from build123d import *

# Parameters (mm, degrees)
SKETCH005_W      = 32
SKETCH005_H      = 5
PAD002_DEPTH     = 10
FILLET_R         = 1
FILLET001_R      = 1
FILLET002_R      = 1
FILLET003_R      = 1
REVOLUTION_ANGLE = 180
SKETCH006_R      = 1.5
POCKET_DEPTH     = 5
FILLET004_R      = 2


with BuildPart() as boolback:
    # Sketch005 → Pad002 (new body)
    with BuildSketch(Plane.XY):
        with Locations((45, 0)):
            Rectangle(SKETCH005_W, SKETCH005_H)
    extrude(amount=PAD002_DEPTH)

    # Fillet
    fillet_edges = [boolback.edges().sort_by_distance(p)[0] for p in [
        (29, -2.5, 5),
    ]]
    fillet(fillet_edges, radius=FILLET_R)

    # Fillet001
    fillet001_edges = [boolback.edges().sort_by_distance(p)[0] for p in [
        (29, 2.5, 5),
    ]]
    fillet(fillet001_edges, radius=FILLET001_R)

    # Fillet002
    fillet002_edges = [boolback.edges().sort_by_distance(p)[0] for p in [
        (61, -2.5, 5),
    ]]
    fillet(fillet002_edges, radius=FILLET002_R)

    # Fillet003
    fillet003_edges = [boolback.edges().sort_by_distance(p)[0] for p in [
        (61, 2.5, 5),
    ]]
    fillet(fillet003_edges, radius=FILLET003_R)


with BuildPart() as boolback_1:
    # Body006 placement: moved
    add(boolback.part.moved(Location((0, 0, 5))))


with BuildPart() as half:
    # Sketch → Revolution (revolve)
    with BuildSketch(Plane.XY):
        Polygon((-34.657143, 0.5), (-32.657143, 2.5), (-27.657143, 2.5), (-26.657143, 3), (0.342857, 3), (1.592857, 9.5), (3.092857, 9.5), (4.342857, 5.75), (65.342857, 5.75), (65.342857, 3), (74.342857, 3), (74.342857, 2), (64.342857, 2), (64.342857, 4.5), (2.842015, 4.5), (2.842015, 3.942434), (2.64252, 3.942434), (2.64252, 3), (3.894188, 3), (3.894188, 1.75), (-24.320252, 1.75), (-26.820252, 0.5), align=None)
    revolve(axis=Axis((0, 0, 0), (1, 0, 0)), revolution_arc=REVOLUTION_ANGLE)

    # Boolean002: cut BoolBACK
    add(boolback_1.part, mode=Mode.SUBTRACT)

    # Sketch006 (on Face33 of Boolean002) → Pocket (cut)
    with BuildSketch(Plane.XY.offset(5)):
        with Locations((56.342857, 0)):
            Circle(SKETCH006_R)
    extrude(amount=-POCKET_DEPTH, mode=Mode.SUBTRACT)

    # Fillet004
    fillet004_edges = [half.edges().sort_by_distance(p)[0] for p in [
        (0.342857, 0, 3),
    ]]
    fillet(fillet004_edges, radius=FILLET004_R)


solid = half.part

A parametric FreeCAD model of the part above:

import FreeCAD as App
import Part
import Sketcher

V = App.Vector
Q = App.Units.Quantity


def edges_at(feature, points):
    """Names of the edges that pass closest to the given points."""
    edges = feature.Shape.Edges
    near = lambda p: min(range(len(edges)), key=lambda i: edges[i].distToShape(Part.Vertex(*p))[0])
    return sorted({f"Edge{near(p) + 1}" for p in points})

doc = App.newDocument("Part")
body = doc.addObject("PartDesign::Body", "Body")

# Sketch on XY plane
sketch1 = body.newObject("Sketcher::SketchObject", "Sketch")
sketch1.AttachmentSupport = (doc.getObject("XY_Plane"), [""])
sketch1.MapMode = "FlatFace"
sketch1.addGeometry(Part.LineSegment(V(29, 2.5, 0), V(29, -2.5, 0)), False)
sketch1.addGeometry(Part.LineSegment(V(29, -2.5, 0), V(61, -2.5, 0)), False)
sketch1.addGeometry(Part.LineSegment(V(61, -2.5, 0), V(61, 2.5, 0)), False)
sketch1.addGeometry(Part.LineSegment(V(61, 2.5, 0), V(29, 2.5, 0)), False)
sketch1.addConstraint(Sketcher.Constraint("Coincident", 0, 2, 1, 1))
sketch1.addConstraint(Sketcher.Constraint("Coincident", 1, 2, 2, 1))
sketch1.addConstraint(Sketcher.Constraint("Coincident", 2, 2, 3, 1))
sketch1.addConstraint(Sketcher.Constraint("Coincident", 3, 2, 0, 1))
sketch1.addConstraint(Sketcher.Constraint("Vertical", 0))
sketch1.addConstraint(Sketcher.Constraint("Horizontal", 1))
sketch1.addConstraint(Sketcher.Constraint("Vertical", 2))
sketch1.addConstraint(Sketcher.Constraint("Horizontal", 3))
sketch1.addConstraint(Sketcher.Constraint("DistanceX", 1, 1, 1, 2, Q("32 mm")))
sketch1.addConstraint(Sketcher.Constraint("DistanceY", 0, 2, 0, 1, Q("5 mm")))
sketch1.addConstraint(Sketcher.Constraint("DistanceX", -1, 1, 0, 2, Q("29 mm")))
sketch1.addConstraint(Sketcher.Constraint("DistanceY", 0, 2, -1, 1, Q("2.5 mm")))
pad1 = body.newObject("PartDesign::Pad", "Pad")
pad1.Profile = sketch1
pad1.Length = 10
doc.recompute()

fillet = body.newObject("PartDesign::Fillet", "Fillet")
fillet.Base = (pad1, edges_at(pad1, [(29, -2.5, 5)]))
fillet.Radius = 1
doc.recompute()

fillet2 = body.newObject("PartDesign::Fillet", "Fillet001")
fillet2.Base = (fillet, edges_at(fillet, [(29, 2.5, 5)]))
fillet2.Radius = 1
doc.recompute()

fillet3 = body.newObject("PartDesign::Fillet", "Fillet002")
fillet3.Base = (fillet2, edges_at(fillet2, [(61, -2.5, 5)]))
fillet3.Radius = 1
doc.recompute()

fillet4 = body.newObject("PartDesign::Fillet", "Fillet003")
fillet4.Base = (fillet3, edges_at(fillet3, [(61, 2.5, 5)]))
fillet4.Radius = 1
body2 = doc.addObject("PartDesign::Body", "Body001")
doc.recompute()

body.Placement = App.Placement(V(0, 0, 5), App.Rotation(V(0, 0, 1), 0))
boolean = body2.newObject("PartDesign::Boolean", "Boolean")
boolean.Type = "Fuse"
boolean.addObjects([body])
body3 = doc.addObject("PartDesign::Body", "Body002")

# Sketch on XY plane
sketch2 = body3.newObject("Sketcher::SketchObject", "Sketch001")
sketch2.AttachmentSupport = (doc.getObject("XY_Plane002"), [""])
sketch2.MapMode = "FlatFace"
sketch2.addGeometry(Part.LineSegment(V(-32.657143, 2.5, 0), V(-34.657143, 0.5, 0)), False)
sketch2.addGeometry(Part.LineSegment(V(-34.657143, 0.5, 0), V(-26.820252, 0.5, 0)), False)
sketch2.addGeometry(Part.LineSegment(V(-26.820252, 0.5, 0), V(-24.320252, 1.75, 0)), False)
sketch2.addGeometry(Part.LineSegment(V(-24.320252, 1.75, 0), V(3.894188, 1.75, 0)), False)
sketch2.addGeometry(Part.LineSegment(V(3.894188, 1.75, 0), V(3.894188, 3, 0)), False)
sketch2.addGeometry(Part.LineSegment(V(3.894188, 3, 0), V(2.64252, 3, 0)), False)
sketch2.addGeometry(Part.LineSegment(V(2.64252, 3, 0), V(2.64252, 3.942434, 0)), False)
sketch2.addGeometry(Part.LineSegment(V(2.64252, 3.942434, 0), V(2.842015, 3.942434, 0)), False)
sketch2.addGeometry(Part.LineSegment(V(2.842015, 3.942434, 0), V(2.842015, 4.5, 0)), False)
sketch2.addGeometry(Part.LineSegment(V(2.842015, 4.5, 0), V(64.342857, 4.5, 0)), False)
sketch2.addGeometry(Part.LineSegment(V(64.342857, 4.5, 0), V(64.342857, 2, 0)), False)
sketch2.addGeometry(Part.LineSegment(V(64.342857, 2, 0), V(74.342857, 2, 0)), False)
sketch2.addGeometry(Part.LineSegment(V(74.342857, 2, 0), V(74.342857, 3, 0)), False)
sketch2.addGeometry(Part.LineSegment(V(74.342857, 3, 0), V(65.342857, 3, 0)), False)
sketch2.addGeometry(Part.LineSegment(V(65.342857, 3, 0), V(65.342857, 5.75, 0)), False)
sketch2.addGeometry(Part.LineSegment(V(65.342857, 5.75, 0), V(4.342857, 5.75, 0)), False)
sketch2.addGeometry(Part.LineSegment(V(4.342857, 5.75, 0), V(3.092857, 9.5, 0)), False)
sketch2.addGeometry(Part.LineSegment(V(3.092857, 9.5, 0), V(1.592857, 9.5, 0)), False)
sketch2.addGeometry(Part.LineSegment(V(1.592857, 9.5, 0), V(0.342857, 3, 0)), False)
sketch2.addGeometry(Part.LineSegment(V(0.342857, 3, 0), V(-26.657143, 3, 0)), False)
sketch2.addGeometry(Part.LineSegment(V(-26.657143, 3, 0), V(-27.657143, 2.5, 0)), False)
sketch2.addGeometry(Part.LineSegment(V(-27.657143, 2.5, 0), V(-32.657143, 2.5, 0)), False)
sketch2.addConstraint(Sketcher.Constraint("Coincident", 0, 2, 1, 1))
sketch2.addConstraint(Sketcher.Constraint("Coincident", 1, 2, 2, 1))
sketch2.addConstraint(Sketcher.Constraint("Coincident", 2, 2, 3, 1))
sketch2.addConstraint(Sketcher.Constraint("Coincident", 3, 2, 4, 1))
sketch2.addConstraint(Sketcher.Constraint("Coincident", 4, 2, 5, 1))
sketch2.addConstraint(Sketcher.Constraint("Coincident", 5, 2, 6, 1))
sketch2.addConstraint(Sketcher.Constraint("Coincident", 6, 2, 7, 1))
sketch2.addConstraint(Sketcher.Constraint("Coincident", 7, 2, 8, 1))
sketch2.addConstraint(Sketcher.Constraint("Coincident", 8, 2, 9, 1))
sketch2.addConstraint(Sketcher.Constraint("Coincident", 9, 2, 10, 1))
sketch2.addConstraint(Sketcher.Constraint("Coincident", 10, 2, 11, 1))
sketch2.addConstraint(Sketcher.Constraint("Coincident", 11, 2, 12, 1))
sketch2.addConstraint(Sketcher.Constraint("Coincident", 12, 2, 13, 1))
sketch2.addConstraint(Sketcher.Constraint("Coincident", 13, 2, 14, 1))
sketch2.addConstraint(Sketcher.Constraint("Coincident", 14, 2, 15, 1))
sketch2.addConstraint(Sketcher.Constraint("Coincident", 15, 2, 16, 1))
sketch2.addConstraint(Sketcher.Constraint("Coincident", 16, 2, 17, 1))
sketch2.addConstraint(Sketcher.Constraint("Coincident", 17, 2, 18, 1))
sketch2.addConstraint(Sketcher.Constraint("Coincident", 18, 2, 19, 1))
sketch2.addConstraint(Sketcher.Constraint("Coincident", 19, 2, 20, 1))
sketch2.addConstraint(Sketcher.Constraint("Coincident", 20, 2, 21, 1))
sketch2.addConstraint(Sketcher.Constraint("Coincident", 21, 2, 0, 1))
sketch2.addConstraint(Sketcher.Constraint("Horizontal", 1))
sketch2.addConstraint(Sketcher.Constraint("Horizontal", 3))
sketch2.addConstraint(Sketcher.Constraint("Vertical", 4))
sketch2.addConstraint(Sketcher.Constraint("Horizontal", 5))
sketch2.addConstraint(Sketcher.Constraint("Vertical", 6))
sketch2.addConstraint(Sketcher.Constraint("Horizontal", 7))
sketch2.addConstraint(Sketcher.Constraint("Vertical", 8))
sketch2.addConstraint(Sketcher.Constraint("Horizontal", 9))
sketch2.addConstraint(Sketcher.Constraint("Vertical", 10))
sketch2.addConstraint(Sketcher.Constraint("Horizontal", 11))
sketch2.addConstraint(Sketcher.Constraint("Vertical", 12))
sketch2.addConstraint(Sketcher.Constraint("Horizontal", 13))
sketch2.addConstraint(Sketcher.Constraint("Vertical", 14))
sketch2.addConstraint(Sketcher.Constraint("Horizontal", 15))
sketch2.addConstraint(Sketcher.Constraint("Horizontal", 17))
sketch2.addConstraint(Sketcher.Constraint("Horizontal", 19))
sketch2.addConstraint(Sketcher.Constraint("Horizontal", 21))
sketch2.addConstraint(Sketcher.Constraint("Parallel", 2, 20))
sketch2.addConstraint(Sketcher.Constraint("Horizontal", 5, 2, 12, 2))
sketch2.addConstraint(Sketcher.Constraint("Horizontal", 13, 2, 18, 2))
sketch2.addConstraint(Sketcher.Constraint("DistanceX", 11, 1, 11, 2, Q("10 mm")))
sketch2.addConstraint(Sketcher.Constraint("DistanceX", 13, 2, 13, 1, Q("9 mm")))
sketch2.addConstraint(Sketcher.Constraint("DistanceX", 15, 2, 15, 1, Q("61 mm")))
sketch2.addConstraint(Sketcher.Constraint("DistanceX", 19, 2, 19, 1, Q("27 mm")))
sketch2.addConstraint(Sketcher.Constraint("DistanceX", 21, 2, 21, 1, Q("5 mm")))
sketch2.addConstraint(Sketcher.Constraint("DistanceY", 12, 1, 12, 2, Q("1 mm")))
sketch2.addConstraint(Sketcher.Constraint("Angle", 0, Q("-135 deg")))
sketch2.addConstraint(Sketcher.Constraint("DistanceX", 17, 2, 17, 1, Q("1.5 mm")))
sketch2.addConstraint(Sketcher.Constraint("DistanceY", 10, 2, 10, 1, Q("2.5 mm")))
sketch2.addConstraint(Sketcher.Constraint("DistanceY", -1, 1, 4, 2, Q("3 mm")))
sketch2.addConstraint(Sketcher.Constraint("DistanceY", 8, 2, 16, 2, Q("5 mm")))
sketch2.addConstraint(Sketcher.Constraint("DistanceX", 0, 2, 19, 2, Q("8 mm")))
sketch2.addConstraint(Sketcher.Constraint("DistanceX", 20, 2, 19, 2, Q("1 mm")))
sketch2.addConstraint(Sketcher.Constraint("DistanceY", 4, 1, 4, 2, Q("1.25 mm")))
sketch2.addConstraint(Sketcher.Constraint("DistanceY", 14, 1, 14, 2, Q("2.75 mm")))
sketch2.addConstraint(Sketcher.Constraint("DistanceY", -1, 1, 0, 2, Q("0.5 mm")))
sketch2.addConstraint(Sketcher.Constraint("DistanceX", 16, 2, 15, 2, Q("1.25 mm")))
sketch2.addConstraint(Sketcher.Constraint("DistanceX", 19, 2, 17, 2, Q("28.25 mm")))
sketch2.addConstraint(Sketcher.Constraint("DistanceX", 1, 1, 1, 2, Q("7.836891 mm")))
sketch2.addConstraint(Sketcher.Constraint("DistanceX", 3, 1, 3, 2, Q("28.21444 mm")))
sketch2.addConstraint(Sketcher.Constraint("DistanceX", 9, 1, 9, 2, Q("61.500842 mm")))
sketch2.addConstraint(Sketcher.Constraint("DistanceX", 5, 2, 5, 1, Q("1.251668 mm")))
sketch2.addConstraint(Sketcher.Constraint("DistanceY", 6, 1, 6, 2, Q("0.942434 mm")))
sketch2.addConstraint(Sketcher.Constraint("DistanceX", 1, 2, -1, 1, Q("26.820252 mm")))
revolution = body3.newObject("PartDesign::Revolution", "Revolution")
revolution.Profile = sketch2
revolution.ReferenceAxis = (sketch2, ["H_Axis"])
revolution.Angle = 180
doc.recompute()

boolean2 = body3.newObject("PartDesign::Boolean", "Boolean001")
boolean2.Type = "Cut"
boolean2.addObjects([body2])

# Sketch on XY plane
sketch3 = body3.newObject("Sketcher::SketchObject", "Sketch002")
sketch3.AttachmentSupport = (doc.getObject("XY_Plane002"), [""])
sketch3.MapMode = "FlatFace"
sketch3.AttachmentOffset = App.Placement(V(0, 0, 5), App.Rotation())
sketch3.addGeometry(Part.Circle(V(56.342857, 0, 0), V(0, 0, 1), 1.5), False)
sketch3.addConstraint(Sketcher.Constraint("PointOnObject", 0, 3, -1))
sketch3.addConstraint(Sketcher.Constraint("Diameter", 0, Q("3 mm")))
sketch3.addConstraint(Sketcher.Constraint("DistanceX", -1, 1, 0, 3, Q("56.342857 mm")))
pocket1 = body3.newObject("PartDesign::Pocket", "Pocket")
pocket1.Profile = sketch3
pocket1.Length = 5
doc.recompute()

fillet5 = body3.newObject("PartDesign::Fillet", "Fillet004")
fillet5.Base = (pocket1, edges_at(pocket1, [(0.343, 0, 3)]))
fillet5.Radius = 2

doc.recompute()
